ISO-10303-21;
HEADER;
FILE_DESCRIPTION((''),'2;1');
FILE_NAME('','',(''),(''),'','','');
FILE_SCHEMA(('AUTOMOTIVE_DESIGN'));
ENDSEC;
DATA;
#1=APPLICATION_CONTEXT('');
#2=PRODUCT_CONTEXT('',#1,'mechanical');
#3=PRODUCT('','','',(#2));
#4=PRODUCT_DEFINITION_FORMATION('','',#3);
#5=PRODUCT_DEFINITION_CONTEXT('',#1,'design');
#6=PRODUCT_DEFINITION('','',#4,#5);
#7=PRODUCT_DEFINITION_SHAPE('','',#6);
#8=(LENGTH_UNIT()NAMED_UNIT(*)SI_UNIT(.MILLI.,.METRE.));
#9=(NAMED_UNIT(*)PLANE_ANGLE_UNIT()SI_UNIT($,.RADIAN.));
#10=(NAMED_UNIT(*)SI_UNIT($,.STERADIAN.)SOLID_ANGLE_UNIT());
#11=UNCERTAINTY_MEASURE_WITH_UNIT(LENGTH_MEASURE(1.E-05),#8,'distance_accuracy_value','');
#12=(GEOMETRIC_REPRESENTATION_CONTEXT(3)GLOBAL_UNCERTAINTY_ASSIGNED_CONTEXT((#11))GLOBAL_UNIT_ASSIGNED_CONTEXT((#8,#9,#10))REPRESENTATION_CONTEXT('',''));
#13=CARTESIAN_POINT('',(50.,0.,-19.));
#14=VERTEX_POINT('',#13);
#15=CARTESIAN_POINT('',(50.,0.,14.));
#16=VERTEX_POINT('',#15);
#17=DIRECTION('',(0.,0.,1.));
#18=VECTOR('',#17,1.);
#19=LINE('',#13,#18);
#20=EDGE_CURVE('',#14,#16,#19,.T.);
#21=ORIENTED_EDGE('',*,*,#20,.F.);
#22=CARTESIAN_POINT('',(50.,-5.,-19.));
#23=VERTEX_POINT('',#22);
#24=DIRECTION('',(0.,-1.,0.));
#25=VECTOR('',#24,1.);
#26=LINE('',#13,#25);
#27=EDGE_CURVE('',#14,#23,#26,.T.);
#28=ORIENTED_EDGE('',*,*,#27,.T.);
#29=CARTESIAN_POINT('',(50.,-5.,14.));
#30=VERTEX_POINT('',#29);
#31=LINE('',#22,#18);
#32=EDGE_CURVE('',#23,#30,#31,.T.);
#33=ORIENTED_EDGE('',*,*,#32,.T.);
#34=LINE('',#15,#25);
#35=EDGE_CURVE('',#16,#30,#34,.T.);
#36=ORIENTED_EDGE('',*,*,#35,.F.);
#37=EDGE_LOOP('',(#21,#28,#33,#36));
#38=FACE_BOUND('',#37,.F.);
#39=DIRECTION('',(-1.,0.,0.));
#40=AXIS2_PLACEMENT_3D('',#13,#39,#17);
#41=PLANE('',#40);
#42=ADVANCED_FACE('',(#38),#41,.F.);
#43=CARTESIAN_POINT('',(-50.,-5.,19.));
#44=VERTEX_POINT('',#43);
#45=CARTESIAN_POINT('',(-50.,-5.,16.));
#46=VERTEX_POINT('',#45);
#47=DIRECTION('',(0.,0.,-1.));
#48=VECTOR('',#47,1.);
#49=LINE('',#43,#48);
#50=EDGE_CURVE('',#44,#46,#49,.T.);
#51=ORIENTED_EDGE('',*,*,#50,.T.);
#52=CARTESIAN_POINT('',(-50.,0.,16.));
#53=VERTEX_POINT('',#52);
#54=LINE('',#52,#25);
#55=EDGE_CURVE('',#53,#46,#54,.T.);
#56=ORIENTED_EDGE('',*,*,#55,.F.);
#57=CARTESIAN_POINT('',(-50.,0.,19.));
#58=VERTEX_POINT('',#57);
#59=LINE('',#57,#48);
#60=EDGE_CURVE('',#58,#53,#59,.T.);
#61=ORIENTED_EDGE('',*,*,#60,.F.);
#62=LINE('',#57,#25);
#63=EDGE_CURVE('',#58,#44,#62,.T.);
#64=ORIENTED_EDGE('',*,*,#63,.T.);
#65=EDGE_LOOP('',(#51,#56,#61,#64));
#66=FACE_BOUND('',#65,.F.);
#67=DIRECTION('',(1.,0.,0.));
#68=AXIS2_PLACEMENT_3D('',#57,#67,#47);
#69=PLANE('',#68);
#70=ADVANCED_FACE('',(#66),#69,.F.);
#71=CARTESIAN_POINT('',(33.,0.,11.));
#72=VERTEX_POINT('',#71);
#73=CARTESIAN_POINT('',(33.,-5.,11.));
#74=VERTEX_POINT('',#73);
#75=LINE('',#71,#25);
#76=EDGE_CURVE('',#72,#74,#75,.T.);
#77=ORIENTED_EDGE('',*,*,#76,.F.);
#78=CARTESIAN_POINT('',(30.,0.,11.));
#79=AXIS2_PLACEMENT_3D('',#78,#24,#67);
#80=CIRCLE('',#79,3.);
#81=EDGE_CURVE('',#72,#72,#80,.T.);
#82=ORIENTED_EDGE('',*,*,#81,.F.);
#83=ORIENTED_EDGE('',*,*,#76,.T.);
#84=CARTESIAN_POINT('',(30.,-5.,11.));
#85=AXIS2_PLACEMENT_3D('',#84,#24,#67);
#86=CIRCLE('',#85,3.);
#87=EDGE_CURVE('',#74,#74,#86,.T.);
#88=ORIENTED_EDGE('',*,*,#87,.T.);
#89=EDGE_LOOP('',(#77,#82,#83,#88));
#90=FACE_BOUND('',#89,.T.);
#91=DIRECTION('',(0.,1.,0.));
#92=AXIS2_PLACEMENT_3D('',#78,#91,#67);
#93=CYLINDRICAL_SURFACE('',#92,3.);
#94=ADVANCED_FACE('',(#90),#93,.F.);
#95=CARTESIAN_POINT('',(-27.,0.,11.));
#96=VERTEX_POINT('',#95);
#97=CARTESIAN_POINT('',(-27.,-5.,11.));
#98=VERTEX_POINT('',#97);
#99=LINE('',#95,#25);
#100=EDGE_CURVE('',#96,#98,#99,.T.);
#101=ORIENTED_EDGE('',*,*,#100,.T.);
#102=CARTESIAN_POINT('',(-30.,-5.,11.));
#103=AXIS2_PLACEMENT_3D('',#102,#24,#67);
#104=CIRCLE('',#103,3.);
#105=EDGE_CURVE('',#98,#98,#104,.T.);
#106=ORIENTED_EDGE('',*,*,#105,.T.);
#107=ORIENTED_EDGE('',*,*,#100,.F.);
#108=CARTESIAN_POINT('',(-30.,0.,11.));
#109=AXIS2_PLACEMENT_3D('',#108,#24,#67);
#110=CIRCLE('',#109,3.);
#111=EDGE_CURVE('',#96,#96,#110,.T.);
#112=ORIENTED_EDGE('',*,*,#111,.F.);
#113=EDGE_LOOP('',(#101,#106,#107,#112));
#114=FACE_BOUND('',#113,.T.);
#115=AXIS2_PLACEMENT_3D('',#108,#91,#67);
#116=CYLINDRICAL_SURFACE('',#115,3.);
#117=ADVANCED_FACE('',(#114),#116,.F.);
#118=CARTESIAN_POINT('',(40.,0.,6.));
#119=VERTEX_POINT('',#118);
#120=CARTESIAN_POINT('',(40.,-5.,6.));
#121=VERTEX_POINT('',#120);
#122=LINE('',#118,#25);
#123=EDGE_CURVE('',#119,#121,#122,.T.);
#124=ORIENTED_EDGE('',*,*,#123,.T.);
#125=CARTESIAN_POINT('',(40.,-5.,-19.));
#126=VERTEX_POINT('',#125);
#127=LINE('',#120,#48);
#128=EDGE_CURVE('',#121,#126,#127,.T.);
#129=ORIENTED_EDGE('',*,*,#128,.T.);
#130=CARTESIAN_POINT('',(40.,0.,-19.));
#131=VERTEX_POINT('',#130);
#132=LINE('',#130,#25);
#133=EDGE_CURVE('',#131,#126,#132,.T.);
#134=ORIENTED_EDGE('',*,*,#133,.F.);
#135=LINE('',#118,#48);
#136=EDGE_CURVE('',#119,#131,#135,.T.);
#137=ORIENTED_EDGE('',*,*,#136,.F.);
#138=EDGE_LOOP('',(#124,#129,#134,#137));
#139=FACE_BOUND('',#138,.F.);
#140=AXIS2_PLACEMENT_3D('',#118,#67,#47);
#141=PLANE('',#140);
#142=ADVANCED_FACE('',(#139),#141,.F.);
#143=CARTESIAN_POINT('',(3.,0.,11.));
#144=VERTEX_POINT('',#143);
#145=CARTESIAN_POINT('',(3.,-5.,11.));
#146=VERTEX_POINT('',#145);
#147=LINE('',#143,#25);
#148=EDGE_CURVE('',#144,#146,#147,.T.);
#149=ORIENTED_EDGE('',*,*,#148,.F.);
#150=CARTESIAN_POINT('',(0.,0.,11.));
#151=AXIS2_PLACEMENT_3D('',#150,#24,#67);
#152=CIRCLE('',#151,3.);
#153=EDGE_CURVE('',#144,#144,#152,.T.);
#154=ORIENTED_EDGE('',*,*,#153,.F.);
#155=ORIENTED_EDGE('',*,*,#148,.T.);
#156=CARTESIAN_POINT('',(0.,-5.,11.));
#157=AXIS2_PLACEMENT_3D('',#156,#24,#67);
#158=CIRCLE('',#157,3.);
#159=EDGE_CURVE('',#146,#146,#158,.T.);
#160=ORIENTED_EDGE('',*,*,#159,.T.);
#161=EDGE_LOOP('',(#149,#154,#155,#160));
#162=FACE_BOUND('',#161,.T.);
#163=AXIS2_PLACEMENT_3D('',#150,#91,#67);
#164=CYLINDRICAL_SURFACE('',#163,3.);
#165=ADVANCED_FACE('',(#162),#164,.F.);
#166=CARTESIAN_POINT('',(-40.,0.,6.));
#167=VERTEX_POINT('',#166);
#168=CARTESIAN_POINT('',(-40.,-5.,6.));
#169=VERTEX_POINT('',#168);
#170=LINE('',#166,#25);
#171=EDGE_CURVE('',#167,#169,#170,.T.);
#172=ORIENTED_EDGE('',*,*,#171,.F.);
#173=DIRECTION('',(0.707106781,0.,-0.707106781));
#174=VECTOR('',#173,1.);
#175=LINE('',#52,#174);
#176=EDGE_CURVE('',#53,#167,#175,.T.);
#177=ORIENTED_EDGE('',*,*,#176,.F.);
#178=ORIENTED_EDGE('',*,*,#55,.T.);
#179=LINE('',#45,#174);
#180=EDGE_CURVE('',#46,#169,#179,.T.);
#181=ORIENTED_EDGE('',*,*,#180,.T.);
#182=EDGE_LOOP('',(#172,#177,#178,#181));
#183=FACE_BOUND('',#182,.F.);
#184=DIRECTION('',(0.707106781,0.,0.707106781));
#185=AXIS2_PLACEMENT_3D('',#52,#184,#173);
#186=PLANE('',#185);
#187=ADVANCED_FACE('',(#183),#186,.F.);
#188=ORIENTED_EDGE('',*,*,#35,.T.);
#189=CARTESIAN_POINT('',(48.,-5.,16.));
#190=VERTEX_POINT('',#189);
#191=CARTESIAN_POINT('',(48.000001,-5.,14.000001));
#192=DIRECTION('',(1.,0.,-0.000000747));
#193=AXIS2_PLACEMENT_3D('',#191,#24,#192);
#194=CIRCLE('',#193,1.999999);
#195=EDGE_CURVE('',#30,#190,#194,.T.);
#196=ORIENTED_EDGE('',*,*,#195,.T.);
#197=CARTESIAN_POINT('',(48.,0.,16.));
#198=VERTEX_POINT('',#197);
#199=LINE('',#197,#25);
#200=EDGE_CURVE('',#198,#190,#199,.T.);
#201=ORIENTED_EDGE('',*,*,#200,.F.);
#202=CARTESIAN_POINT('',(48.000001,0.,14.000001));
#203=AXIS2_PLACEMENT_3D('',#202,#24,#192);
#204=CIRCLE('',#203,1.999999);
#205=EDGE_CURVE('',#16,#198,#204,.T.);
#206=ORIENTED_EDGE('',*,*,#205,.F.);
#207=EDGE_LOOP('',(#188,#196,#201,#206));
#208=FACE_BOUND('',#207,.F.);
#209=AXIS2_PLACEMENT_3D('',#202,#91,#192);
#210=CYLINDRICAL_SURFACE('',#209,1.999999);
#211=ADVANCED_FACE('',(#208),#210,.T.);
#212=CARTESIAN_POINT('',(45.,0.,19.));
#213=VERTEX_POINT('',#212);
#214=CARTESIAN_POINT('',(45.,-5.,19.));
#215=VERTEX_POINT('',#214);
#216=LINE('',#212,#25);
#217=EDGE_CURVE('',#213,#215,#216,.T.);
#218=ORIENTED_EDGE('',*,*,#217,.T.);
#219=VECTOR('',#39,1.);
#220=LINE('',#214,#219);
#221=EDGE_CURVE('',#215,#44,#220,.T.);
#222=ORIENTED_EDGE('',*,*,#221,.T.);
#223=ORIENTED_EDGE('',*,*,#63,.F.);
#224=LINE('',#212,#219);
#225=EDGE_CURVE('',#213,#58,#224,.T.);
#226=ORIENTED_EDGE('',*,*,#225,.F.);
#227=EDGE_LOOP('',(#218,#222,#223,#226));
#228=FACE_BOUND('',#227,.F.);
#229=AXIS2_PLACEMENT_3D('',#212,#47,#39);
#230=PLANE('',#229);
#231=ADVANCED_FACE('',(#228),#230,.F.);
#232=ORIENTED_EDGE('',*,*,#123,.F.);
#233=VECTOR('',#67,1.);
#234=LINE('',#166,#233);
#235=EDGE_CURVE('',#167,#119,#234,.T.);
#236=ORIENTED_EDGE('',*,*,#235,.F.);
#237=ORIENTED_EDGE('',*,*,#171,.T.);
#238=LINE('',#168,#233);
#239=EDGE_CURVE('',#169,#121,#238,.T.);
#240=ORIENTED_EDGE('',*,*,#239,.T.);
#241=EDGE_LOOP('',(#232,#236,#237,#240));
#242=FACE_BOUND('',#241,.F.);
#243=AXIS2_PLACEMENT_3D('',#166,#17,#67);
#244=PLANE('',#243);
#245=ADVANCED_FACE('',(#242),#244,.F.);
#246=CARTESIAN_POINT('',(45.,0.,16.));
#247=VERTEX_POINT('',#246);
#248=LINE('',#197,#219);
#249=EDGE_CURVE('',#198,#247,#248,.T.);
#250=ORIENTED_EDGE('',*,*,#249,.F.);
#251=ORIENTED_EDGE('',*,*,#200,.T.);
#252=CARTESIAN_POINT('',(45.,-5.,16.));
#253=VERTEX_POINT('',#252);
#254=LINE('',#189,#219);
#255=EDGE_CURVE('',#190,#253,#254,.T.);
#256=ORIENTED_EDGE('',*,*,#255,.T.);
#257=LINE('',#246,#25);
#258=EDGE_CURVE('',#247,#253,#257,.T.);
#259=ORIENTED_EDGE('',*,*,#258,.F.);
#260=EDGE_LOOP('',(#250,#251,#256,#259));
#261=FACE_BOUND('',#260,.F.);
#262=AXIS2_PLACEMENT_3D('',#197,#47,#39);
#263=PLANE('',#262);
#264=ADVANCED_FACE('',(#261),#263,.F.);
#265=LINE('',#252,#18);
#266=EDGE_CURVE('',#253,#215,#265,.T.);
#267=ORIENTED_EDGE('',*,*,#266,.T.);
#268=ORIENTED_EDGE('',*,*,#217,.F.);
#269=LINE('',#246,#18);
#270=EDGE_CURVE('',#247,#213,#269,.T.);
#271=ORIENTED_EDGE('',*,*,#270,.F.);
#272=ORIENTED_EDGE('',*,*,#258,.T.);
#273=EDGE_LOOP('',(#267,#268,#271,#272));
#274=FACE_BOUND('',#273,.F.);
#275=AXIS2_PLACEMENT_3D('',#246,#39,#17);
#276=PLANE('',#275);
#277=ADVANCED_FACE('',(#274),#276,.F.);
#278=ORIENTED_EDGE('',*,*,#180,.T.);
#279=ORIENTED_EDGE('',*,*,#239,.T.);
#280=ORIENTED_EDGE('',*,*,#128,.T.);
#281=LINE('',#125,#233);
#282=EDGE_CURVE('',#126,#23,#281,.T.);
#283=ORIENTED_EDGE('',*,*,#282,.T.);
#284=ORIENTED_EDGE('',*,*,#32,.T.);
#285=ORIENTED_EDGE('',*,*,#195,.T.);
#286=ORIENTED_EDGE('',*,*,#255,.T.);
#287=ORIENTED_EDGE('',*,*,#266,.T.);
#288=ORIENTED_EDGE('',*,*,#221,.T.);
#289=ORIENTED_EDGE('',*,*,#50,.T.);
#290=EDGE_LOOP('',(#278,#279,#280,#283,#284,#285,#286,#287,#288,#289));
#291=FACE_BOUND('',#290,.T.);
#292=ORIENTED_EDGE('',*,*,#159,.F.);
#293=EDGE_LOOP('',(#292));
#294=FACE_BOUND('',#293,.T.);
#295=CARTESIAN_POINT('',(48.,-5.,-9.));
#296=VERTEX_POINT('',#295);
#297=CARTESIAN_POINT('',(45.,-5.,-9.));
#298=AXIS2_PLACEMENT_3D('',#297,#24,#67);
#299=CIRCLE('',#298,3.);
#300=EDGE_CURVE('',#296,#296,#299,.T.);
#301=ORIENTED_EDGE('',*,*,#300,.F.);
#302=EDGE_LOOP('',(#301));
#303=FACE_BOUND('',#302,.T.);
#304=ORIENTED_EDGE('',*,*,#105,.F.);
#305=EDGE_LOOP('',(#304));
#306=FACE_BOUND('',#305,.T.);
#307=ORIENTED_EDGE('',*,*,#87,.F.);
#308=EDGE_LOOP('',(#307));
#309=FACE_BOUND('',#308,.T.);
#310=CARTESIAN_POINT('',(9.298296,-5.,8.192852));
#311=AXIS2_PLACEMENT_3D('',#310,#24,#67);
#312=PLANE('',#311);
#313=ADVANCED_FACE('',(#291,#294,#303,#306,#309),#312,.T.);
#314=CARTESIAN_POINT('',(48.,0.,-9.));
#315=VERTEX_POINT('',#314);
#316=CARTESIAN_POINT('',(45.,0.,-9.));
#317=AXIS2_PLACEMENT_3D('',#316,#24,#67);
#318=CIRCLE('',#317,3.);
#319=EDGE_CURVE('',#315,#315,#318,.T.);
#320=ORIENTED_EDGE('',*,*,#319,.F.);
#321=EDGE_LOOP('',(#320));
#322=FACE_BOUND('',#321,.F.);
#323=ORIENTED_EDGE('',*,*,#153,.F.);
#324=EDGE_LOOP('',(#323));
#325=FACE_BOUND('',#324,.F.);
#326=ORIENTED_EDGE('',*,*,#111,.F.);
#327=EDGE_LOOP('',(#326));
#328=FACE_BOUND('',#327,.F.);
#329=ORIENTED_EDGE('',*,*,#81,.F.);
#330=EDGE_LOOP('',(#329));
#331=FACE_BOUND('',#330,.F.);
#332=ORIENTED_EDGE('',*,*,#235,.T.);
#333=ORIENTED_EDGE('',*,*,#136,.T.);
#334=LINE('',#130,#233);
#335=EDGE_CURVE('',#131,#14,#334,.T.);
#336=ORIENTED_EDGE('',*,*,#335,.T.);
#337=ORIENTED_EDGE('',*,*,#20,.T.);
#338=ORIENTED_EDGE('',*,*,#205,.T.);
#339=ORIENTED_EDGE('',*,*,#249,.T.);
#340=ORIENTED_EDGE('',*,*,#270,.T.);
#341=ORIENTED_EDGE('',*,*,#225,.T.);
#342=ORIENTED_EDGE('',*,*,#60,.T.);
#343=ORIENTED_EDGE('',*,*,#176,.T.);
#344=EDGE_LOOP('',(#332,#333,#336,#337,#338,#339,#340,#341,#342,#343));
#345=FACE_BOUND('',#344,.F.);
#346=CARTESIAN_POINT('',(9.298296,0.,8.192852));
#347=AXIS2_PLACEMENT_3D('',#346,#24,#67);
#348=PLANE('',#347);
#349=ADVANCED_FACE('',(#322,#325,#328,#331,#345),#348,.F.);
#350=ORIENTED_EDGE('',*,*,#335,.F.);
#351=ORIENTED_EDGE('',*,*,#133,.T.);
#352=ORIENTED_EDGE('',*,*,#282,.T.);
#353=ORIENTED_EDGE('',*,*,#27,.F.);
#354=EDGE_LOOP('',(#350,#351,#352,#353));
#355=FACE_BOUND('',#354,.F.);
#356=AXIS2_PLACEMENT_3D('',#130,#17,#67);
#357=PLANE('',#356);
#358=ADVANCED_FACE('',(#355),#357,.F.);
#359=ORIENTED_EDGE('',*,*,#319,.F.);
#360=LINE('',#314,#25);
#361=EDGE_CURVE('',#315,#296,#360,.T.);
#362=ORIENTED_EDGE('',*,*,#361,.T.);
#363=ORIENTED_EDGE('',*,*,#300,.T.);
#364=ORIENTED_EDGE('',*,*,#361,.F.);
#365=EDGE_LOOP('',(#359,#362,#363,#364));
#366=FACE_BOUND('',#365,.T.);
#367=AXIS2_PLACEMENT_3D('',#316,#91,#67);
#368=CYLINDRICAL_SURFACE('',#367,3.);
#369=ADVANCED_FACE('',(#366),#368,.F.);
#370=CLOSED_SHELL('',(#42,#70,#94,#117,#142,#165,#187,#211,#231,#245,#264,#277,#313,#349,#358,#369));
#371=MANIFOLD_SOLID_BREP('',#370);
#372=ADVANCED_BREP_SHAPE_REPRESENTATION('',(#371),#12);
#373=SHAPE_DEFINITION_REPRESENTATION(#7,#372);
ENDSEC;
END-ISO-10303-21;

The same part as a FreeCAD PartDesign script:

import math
import FreeCAD as App
import Part
import Sketcher
from FreeCAD import Vector
Q = App.Units.Quantity

doc = App.newDocument("Part")
body = doc.addObject("PartDesign::Body", "Body")

sketch1 = body.newObject("Sketcher::SketchObject", "Sketch")
sketch1.AttachmentSupport = (doc.getObject("XZ_Plane"), [""])
sketch1.MapMode = "FlatFace"
sketch1.addGeometry([
    Part.LineSegment(Vector(45, 19, 0), Vector(-50, 19, 0)),
    Part.LineSegment(Vector(-50, 19, 0), Vector(-50, 16, 0)),
    Part.LineSegment(Vector(-50, 16, 0), Vector(-40, 6, 0)),
    Part.LineSegment(Vector(-40, 6, 0), Vector(40, 6, 0)),
    Part.LineSegment(Vector(40, 6, 0), Vector(40, -19, 0)),
    Part.LineSegment(Vector(40, -19, 0), Vector(50, -19, 0)),
    Part.LineSegment(Vector(50, -19, 0), Vector(50, 14, 0)),
    Part.ArcOfCircle(Part.Circle(Vector(48.000001, 14.000001, 0), Vector(0, 0, 1), 1.999999), math.radians(-0.000043), math.radians(90.000043)),
    Part.LineSegment(Vector(48, 16, 0), Vector(45, 16, 0)),
    Part.LineSegment(Vector(45, 16, 0), Vector(45, 19, 0)),
    Part.Circle(Vector(45, -9, 0), Vector(0, 0, 1), 3),
    Part.Circle(Vector(-30, 11, 0), Vector(0, 0, 1), 3),
    Part.Circle(Vector(0, 11, 0), Vector(0, 0, 1), 3),
    Part.Circle(Vector(30, 11, 0), Vector(0, 0, 1), 3),
], False)
sketch1.addConstraint([
    Sketcher.Constraint("Coincident", 0, 2, 1, 1),
    Sketcher.Constraint("Coincident", 1, 2, 2, 1),
    Sketcher.Constraint("Coincident", 2, 2, 3, 1),
    Sketcher.Constraint("Coincident", 3, 2, 4, 1),
    Sketcher.Constraint("Coincident", 4, 2, 5, 1),
    Sketcher.Constraint("Coincident", 5, 2, 6, 1),
    Sketcher.Constraint("Tangent", 6, 2, 7, 1),
    Sketcher.Constraint("Tangent", 7, 2, 8, 1),
    Sketcher.Constraint("Coincident", 8, 2, 9, 1),
    Sketcher.Constraint("Coincident", 9, 2, 0, 1),
    Sketcher.Constraint("Horizontal", 0),
    Sketcher.Constraint("Vertical", 1),
    Sketcher.Constraint("Horizontal", 3),
    Sketcher.Constraint("Vertical", 4),
    Sketcher.Constraint("Horizontal", 5),
    Sketcher.Constraint("Vertical", 6),
    Sketcher.Constraint("Horizontal", 8),
    Sketcher.Constraint("Vertical", 9),
    Sketcher.Constraint("Equal", 10, 11),
    Sketcher.Constraint("Equal", 11, 12),
    Sketcher.Constraint("Equal", 12, 13),
    Sketcher.Constraint("Symmetric", 0, 2, 5, 2, -1, 1),
    Sketcher.Constraint("Symmetric", 11, 3, 13, 3, -2),
    Sketcher.Constraint("PointOnObject", 12, 3, -2),
    Sketcher.Constraint("Horizontal", 11, 3, 12, 3),
    Sketcher.Constraint("Horizontal", 1, 2, 7, 2),
    Sketcher.Constraint("Vertical", 10, 3, 8, 2),
    Sketcher.Constraint("Equal", 8, 1),
    Sketcher.Constraint("Diameter", 10, Q("6 mm")),
    Sketcher.Constraint("Radius", 7, Q("1.999999 mm")),
    Sketcher.Constraint("DistanceX", 0, 2, 0, 1, Q("95 mm")),
    Sketcher.Constraint("DistanceX", 3, 1, 3, 2, Q("80 mm")),
    Sketcher.Constraint("DistanceX", 5, 1, 5, 2, Q("10 mm")),
    Sketcher.Constraint("DistanceX", 8, 2, 8, 1, Q("3 mm")),
    Sketcher.Constraint("DistanceY", 4, 2, 4, 1, Q("25 mm")),
    Sketcher.Constraint("DistanceY", 6, 1, 6, 2, Q("33 mm")),
    Sketcher.Constraint("DistanceY", 10, 3, -1, 1, Q("9 mm")),
    Sketcher.Constraint("DistanceX", 11, 3, -1, 1, Q("30 mm")),
    Sketcher.Constraint("DistanceY", -1, 1, 11, 3, Q("11 mm")),
])
pad1 = body.newObject("PartDesign::Pad", "Pad")
pad1.Profile = sketch1
pad1.Length = 5

doc.recompute()
